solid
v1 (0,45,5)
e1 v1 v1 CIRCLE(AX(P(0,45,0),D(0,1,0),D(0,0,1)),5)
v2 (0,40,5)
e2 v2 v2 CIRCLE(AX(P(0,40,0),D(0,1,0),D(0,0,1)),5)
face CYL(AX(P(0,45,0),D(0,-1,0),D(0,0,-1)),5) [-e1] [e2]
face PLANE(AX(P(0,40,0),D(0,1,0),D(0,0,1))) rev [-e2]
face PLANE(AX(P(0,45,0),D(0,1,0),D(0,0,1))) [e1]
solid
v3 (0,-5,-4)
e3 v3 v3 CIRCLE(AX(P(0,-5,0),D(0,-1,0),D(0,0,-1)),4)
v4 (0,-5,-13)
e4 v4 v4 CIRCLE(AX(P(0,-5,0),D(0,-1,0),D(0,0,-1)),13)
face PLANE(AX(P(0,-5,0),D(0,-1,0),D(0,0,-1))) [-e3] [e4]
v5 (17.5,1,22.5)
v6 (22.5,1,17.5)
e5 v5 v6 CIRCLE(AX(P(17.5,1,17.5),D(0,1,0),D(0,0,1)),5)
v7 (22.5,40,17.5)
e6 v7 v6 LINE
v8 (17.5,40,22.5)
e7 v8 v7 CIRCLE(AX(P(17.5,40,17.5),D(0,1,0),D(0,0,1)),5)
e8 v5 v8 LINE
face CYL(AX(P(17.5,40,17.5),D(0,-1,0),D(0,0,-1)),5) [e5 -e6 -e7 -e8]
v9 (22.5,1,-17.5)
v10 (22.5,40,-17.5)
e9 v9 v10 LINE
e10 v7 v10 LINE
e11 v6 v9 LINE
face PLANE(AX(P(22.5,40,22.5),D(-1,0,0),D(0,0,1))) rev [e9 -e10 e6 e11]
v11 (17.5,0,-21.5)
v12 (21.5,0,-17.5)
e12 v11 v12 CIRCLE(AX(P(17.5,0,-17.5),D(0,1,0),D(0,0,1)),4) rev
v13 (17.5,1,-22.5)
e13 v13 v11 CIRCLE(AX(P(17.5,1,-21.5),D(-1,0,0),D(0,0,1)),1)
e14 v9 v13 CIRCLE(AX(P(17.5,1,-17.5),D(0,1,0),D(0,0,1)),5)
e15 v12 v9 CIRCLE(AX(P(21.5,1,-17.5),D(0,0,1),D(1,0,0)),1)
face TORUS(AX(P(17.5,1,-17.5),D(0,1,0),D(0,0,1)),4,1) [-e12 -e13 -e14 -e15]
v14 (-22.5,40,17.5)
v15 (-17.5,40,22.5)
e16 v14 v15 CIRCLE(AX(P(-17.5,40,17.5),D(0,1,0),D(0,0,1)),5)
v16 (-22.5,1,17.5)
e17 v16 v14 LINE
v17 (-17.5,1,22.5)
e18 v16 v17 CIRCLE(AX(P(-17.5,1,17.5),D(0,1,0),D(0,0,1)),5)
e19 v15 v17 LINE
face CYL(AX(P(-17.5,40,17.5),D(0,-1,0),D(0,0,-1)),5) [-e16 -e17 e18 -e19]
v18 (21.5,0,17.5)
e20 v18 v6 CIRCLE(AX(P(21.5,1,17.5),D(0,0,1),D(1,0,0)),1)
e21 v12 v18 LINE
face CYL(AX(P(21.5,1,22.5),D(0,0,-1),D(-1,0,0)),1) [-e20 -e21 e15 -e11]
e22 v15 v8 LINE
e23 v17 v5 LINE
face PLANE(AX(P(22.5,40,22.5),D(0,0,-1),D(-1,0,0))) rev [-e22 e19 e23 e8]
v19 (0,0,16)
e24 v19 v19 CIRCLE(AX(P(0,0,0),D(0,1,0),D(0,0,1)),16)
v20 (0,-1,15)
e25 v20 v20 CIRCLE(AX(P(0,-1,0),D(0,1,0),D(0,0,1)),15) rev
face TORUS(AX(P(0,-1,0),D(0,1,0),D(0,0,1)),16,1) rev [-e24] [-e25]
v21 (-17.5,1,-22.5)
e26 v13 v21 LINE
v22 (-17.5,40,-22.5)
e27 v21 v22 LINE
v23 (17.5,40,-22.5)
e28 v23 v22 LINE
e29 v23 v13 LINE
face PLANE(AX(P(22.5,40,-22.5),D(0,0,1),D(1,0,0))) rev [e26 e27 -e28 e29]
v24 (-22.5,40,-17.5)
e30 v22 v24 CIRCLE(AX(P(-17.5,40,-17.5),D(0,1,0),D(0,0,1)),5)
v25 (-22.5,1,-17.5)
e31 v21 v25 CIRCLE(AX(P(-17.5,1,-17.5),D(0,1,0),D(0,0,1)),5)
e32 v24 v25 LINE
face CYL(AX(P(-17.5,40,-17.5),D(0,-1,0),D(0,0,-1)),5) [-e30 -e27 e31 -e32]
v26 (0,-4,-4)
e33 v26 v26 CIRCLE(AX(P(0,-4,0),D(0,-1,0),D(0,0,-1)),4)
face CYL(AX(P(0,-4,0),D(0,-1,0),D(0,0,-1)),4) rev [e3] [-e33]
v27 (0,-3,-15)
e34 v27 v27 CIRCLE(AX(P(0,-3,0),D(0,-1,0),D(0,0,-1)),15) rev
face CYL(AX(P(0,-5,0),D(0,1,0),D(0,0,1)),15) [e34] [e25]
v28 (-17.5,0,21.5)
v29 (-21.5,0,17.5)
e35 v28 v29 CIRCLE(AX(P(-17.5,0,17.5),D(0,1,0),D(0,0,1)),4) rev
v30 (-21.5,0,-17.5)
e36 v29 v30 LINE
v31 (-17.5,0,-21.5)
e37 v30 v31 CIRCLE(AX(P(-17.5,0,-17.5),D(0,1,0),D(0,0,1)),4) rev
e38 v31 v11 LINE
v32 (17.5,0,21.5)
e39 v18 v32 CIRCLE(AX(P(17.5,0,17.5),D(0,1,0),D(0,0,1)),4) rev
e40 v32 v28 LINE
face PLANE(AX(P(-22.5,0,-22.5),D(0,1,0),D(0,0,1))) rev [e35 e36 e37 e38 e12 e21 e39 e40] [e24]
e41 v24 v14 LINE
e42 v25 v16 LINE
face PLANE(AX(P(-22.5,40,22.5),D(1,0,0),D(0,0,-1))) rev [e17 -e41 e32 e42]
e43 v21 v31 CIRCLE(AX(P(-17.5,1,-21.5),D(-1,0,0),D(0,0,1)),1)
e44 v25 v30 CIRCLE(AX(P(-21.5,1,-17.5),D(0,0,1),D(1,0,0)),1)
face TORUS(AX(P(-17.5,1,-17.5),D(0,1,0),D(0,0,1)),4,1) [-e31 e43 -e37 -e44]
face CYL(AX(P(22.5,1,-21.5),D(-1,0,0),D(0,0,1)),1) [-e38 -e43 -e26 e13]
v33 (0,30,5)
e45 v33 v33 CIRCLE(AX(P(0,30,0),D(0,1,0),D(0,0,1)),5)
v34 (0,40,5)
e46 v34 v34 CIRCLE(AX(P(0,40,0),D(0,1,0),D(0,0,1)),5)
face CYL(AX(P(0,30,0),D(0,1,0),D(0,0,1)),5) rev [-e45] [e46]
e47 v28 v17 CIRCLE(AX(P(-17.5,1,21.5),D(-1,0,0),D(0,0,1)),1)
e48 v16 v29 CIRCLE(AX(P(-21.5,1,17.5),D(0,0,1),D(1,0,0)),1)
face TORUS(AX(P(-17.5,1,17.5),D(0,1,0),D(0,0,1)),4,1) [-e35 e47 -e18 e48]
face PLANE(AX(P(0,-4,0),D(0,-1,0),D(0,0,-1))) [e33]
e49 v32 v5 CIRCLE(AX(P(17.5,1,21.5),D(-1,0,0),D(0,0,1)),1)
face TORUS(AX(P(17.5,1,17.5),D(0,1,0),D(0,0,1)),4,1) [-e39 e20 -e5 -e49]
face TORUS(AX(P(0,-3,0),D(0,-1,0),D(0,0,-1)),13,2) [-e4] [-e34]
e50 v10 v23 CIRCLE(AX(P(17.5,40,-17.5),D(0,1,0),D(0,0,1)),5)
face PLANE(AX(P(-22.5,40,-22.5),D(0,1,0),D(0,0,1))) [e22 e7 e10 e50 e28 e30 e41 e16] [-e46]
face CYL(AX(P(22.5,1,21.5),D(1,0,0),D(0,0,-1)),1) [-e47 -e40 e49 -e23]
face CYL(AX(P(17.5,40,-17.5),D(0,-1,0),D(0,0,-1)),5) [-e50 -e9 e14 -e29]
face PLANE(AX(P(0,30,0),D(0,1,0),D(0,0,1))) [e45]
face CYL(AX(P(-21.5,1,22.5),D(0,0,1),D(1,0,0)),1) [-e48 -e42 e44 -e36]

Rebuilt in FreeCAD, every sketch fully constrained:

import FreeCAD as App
import Part
import Sketcher
from FreeCAD import Vector
Q = App.Units.Quantity


def edges_at(feature, points):
    """Names of the edges that pass closest to the given points."""
    edges = feature.Shape.Edges
    near = lambda p: min(range(len(edges)), key=lambda i: edges[i].distToShape(Part.Vertex(*p))[0])
    return sorted({f"Edge{near(p) + 1}" for p in points})


def add_polygon(sketch, points):
    """Adds a closed chain of lines whose ends are joined by coincident constraints."""
    first, n = sketch.GeometryCount, len(points)
    for a, b in zip(points, points[1:] + points[:1]):
        sketch.addGeometry(Part.LineSegment(App.Vector(*a, 0), App.Vector(*b, 0)), False)
    for i in range(n):
        sketch.addConstraint(Sketcher.Constraint("Coincident", first + i, 2, first + (i + 1) % n, 1))

doc = App.newDocument("Part")
params = doc.addObject("Spreadsheet::Sheet", "Params")
for row, (alias, value) in enumerate([
    ("sketch1_width", "45 mm"),
    ("pad1_length", "40 mm"),
    ("sketch2_diameter", "10 mm"),
    ("pocket1_length", "10 mm"),
    ("fillet_radius", "5 mm"),
    ("sketch3_diameter", "30 mm"),
    ("pad2_length", "5 mm"),
    ("fillet2_radius", "2 mm"),
    ("fillet3_radius", "1 mm"),
    ("sketch4_diameter", "8 mm"),
    ("pocket2_length", "1 mm"),
    ("sketch5_diameter", "10 mm"),
    ("pad3_length", "5 mm"),
], start=1):
    params.set(f"A{row}", alias)
    params.set(f"B{row}", "=" + value)
    params.setAlias(f"B{row}", alias)

body = doc.addObject("PartDesign::Body", "Body")

sketch1 = body.newObject("Sketcher::SketchObject", "Sketch")
sketch1.AttachmentSupport = (doc.getObject("XZ_Plane"), [""])
sketch1.MapMode = "FlatFace"
add_polygon(sketch1, [(-22.5, -22.5), (-22.5, 22.5), (22.5, 22.5), (22.5, -22.5)])
sketch1.addConstraint(Sketcher.Constraint("Vertical", 0))
sketch1.addConstraint(Sketcher.Constraint("Horizontal", 1))
sketch1.addConstraint(Sketcher.Constraint("Vertical", 2))
sketch1.addConstraint(Sketcher.Constraint("Horizontal", 3))
sketch1.addConstraint(Sketcher.Constraint("Symmetric", 0, 2, 2, 2, -1, 1))
sketch1.addConstraint(Sketcher.Constraint("Equal", 3, 0))
sketch1.addConstraint(Sketcher.Constraint("DistanceX", 1, 1, 1, 2, Q("45 mm")))
sketch1.setExpression("Constraints[10]", "Params.sketch1_width")
pad1 = body.newObject("PartDesign::Pad", "Pad")
pad1.Profile = sketch1
pad1.setExpression("Length", "Params.pad1_length")
pad1.Reversed = True

sketch2 = body.newObject("Sketcher::SketchObject", "Sketch001")
sketch2.AttachmentSupport = (doc.getObject("XZ_Plane"), [""])
sketch2.MapMode = "FlatFace"
sketch2.AttachmentOffset = App.Placement(Vector(0, 0, -40), App.Rotation())
sketch2.addGeometry(Part.Circle(Vector(0, 0, 0), Vector(0, 0, 1), 5), False)
sketch2.addConstraint(Sketcher.Constraint("Coincident", 0, 3, -1, 1))
sketch2.addConstraint(Sketcher.Constraint("Diameter", 0, Q("10 mm")))
sketch2.setExpression("Constraints[1]", "Params.sketch2_diameter")
pocket1 = body.newObject("PartDesign::Pocket", "Pocket")
pocket1.Profile = sketch2
pocket1.setExpression("Length", "Params.pocket1_length")
pocket1.Reversed = True
doc.recompute()

fillet = body.newObject("PartDesign::Fillet", "Fillet")
fillet.Base = (pocket1, edges_at(pocket1, [
    (-22.5, 20, -22.5),
    (22.5, 20, -22.5),
    (22.5, 20, 22.5),
    (-22.5, 20, 22.5),
]))
fillet.setExpression("Radius", "Params.fillet_radius")

sketch3 = body.newObject("Sketcher::SketchObject", "Sketch002")
sketch3.AttachmentSupport = (doc.getObject("XZ_Plane"), [""])
sketch3.MapMode = "FlatFace"
sketch3.addGeometry(Part.Circle(Vector(0, 0, 0), Vector(0, 0, 1), 15), False)
sketch3.addConstraint(Sketcher.Constraint("Coincident", 0, 3, -1, 1))
sketch3.addConstraint(Sketcher.Constraint("Diameter", 0, Q("30 mm")))
sketch3.setExpression("Constraints[1]", "Params.sketch3_diameter")
pad2 = body.newObject("PartDesign::Pad", "Pad001")
pad2.Profile = sketch3
pad2.setExpression("Length", "Params.pad2_length")
doc.recompute()

fillet2 = body.newObject("PartDesign::Fillet", "Fillet001")
fillet2.Base = (pad2, edges_at(pad2, [(0, -5, -15)]))
fillet2.setExpression("Radius", "Params.fillet2_radius")
doc.recompute()

fillet3 = body.newObject("PartDesign::Fillet", "Fillet002")
fillet3.Base = (fillet2, edges_at(fillet2, [
    (-22.5, 0, 0),
    (0, 0, -22.5),
    (22.5, 0, 0),
    (0, 0, 22.5),
    (-21.036, 0, 21.036),
    (21.036, 0, 21.036),
    (21.036, 0, -21.036),
    (-21.036, 0, -21.036),
    (0, 0, -15),
]))
fillet3.setExpression("Radius", "Params.fillet3_radius")

sketch4 = body.newObject("Sketcher::SketchObject", "Sketch003")
sketch4.AttachmentSupport = (doc.getObject("XZ_Plane"), [""])
sketch4.MapMode = "FlatFace"
sketch4.AttachmentOffset = App.Placement(Vector(0, 0, 5), App.Rotation())
sketch4.addGeometry(Part.Circle(Vector(0, 0, 0), Vector(0, 0, 1), 4), False)
sketch4.addConstraint(Sketcher.Constraint("Coincident", 0, 3, -1, 1))
sketch4.addConstraint(Sketcher.Constraint("Diameter", 0, Q("8 mm")))
sketch4.setExpression("Constraints[1]", "Params.sketch4_diameter")
pocket2 = body.newObject("PartDesign::Pocket", "Pocket001")
pocket2.Profile = sketch4
pocket2.setExpression("Length", "Params.pocket2_length")
body2 = doc.addObject("PartDesign::Body", "Body001")

sketch5 = body2.newObject("Sketcher::SketchObject", "Sketch004")
sketch5.AttachmentSupport = (doc.getObject("XZ_Plane001"), [""])
sketch5.MapMode = "FlatFace"
sketch5.AttachmentOffset = App.Placement(Vector(0, 0, -40), App.Rotation())
sketch5.addGeometry(Part.Circle(Vector(0, 0, 0), Vector(0, 0, 1), 5), False)
sketch5.addConstraint(Sketcher.Constraint("Coincident", 0, 3, -1, 1))
sketch5.addConstraint(Sketcher.Constraint("Diameter", 0, Q("10 mm")))
sketch5.setExpression("Constraints[1]", "Params.sketch5_diameter")
pad3 = body2.newObject("PartDesign::Pad", "Pad002")
pad3.Profile = sketch5
pad3.setExpression("Length", "Params.pad3_length")
pad3.Reversed = True

doc.recompute()
